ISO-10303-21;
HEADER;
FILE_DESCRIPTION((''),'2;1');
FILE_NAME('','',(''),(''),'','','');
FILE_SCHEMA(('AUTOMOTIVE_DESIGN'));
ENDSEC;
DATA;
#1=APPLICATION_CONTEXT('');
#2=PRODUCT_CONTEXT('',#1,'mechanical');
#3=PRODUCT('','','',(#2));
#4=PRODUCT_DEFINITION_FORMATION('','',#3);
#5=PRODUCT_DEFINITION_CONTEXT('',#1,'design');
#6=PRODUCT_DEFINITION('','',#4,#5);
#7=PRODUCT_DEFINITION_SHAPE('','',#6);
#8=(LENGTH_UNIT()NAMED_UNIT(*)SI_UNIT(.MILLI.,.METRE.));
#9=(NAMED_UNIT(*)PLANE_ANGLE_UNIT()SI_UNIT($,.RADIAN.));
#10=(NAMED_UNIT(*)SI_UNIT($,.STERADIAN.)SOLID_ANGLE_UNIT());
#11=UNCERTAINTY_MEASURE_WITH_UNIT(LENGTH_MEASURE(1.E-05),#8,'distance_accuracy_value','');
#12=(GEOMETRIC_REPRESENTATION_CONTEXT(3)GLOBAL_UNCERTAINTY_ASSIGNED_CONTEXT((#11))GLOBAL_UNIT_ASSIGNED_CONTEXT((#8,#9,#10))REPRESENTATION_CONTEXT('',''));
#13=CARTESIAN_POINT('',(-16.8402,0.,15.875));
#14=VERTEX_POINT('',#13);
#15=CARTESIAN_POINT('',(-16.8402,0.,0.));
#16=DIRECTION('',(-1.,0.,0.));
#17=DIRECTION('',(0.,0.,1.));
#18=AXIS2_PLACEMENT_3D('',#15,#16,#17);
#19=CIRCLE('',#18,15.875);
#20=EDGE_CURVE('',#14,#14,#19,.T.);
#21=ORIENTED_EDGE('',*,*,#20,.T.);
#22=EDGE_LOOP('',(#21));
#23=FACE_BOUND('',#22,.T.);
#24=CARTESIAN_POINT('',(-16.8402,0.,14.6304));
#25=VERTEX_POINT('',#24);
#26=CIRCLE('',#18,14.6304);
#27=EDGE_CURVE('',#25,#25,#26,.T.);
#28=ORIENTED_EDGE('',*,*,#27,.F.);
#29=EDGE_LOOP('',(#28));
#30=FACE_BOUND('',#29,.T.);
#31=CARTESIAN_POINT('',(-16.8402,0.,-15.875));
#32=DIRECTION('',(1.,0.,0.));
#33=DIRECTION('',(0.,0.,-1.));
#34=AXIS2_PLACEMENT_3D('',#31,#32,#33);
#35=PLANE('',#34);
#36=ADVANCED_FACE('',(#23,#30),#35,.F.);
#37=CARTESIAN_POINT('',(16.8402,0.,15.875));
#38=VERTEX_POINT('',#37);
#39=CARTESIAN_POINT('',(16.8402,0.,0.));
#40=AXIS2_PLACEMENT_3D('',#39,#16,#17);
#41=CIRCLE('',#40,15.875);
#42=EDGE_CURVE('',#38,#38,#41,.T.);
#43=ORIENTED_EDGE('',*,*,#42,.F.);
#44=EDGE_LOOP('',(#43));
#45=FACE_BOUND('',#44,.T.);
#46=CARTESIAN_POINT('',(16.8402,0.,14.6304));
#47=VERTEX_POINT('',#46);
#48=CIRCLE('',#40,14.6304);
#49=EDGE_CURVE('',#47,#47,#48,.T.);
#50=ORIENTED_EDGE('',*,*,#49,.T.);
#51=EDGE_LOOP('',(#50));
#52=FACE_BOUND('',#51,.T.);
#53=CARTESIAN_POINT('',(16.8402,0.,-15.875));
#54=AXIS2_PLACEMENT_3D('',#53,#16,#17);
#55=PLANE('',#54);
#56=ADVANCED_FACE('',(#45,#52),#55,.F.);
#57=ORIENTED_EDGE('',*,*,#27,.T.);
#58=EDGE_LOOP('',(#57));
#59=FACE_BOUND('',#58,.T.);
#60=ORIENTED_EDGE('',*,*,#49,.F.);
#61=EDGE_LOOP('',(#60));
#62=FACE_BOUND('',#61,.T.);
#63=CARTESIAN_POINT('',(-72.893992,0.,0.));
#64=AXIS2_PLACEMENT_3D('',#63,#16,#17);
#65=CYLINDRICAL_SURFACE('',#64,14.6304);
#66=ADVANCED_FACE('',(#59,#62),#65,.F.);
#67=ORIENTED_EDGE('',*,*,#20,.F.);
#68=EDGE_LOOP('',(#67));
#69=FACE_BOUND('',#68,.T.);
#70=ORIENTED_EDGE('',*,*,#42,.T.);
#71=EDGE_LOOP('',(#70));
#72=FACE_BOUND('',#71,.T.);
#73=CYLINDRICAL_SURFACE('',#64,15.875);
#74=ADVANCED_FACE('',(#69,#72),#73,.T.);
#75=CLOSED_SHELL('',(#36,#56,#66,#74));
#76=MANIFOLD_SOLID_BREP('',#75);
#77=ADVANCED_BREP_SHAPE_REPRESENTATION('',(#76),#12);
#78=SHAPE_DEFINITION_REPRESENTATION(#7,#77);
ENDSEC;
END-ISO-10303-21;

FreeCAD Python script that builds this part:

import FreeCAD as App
import Part
import Sketcher
from FreeCAD import Vector
Q = App.Units.Quantity

doc = App.newDocument("Part")
body = doc.addObject("PartDesign::Body", "Body")

sketch1 = body.newObject("Sketcher::SketchObject", "Sketch")
sketch1.AttachmentSupport = (doc.getObject("XZ_Plane"), [""])
sketch1.MapMode = "FlatFace"
sketch1.addGeometry(Part.LineSegment(Vector(-16.8, -15.9, 0), Vector(-16.8, -14.6, 0)), False)
sketch1.addGeometry(Part.LineSegment(Vector(-16.8, -14.6, 0), Vector(16.8, -14.6, 0)), False)
sketch1.addGeometry(Part.LineSegment(Vector(16.8, -14.6, 0), Vector(16.8, -15.9, 0)), False)
sketch1.addGeometry(Part.LineSegment(Vector(16.8, -15.9, 0), Vector(-16.8, -15.9, 0)), False)
sketch1.addConstraint(Sketcher.Constraint("Coincident", 0, 2, 1, 1))
sketch1.addConstraint(Sketcher.Constraint("Coincident", 1, 2, 2, 1))
sketch1.addConstraint(Sketcher.Constraint("Coincident", 2, 2, 3, 1))
sketch1.addConstraint(Sketcher.Constraint("Coincident", 3, 2, 0, 1))
sketch1.addConstraint(Sketcher.Constraint("Vertical", 0))
sketch1.addConstraint(Sketcher.Constraint("Horizontal", 1))
sketch1.addConstraint(Sketcher.Constraint("Vertical", 2))
sketch1.addConstraint(Sketcher.Constraint("Horizontal", 3))
sketch1.addConstraint(Sketcher.Constraint("DistanceX", 1, 1, 1, 2, Q("1.326 in")))
sketch1.addConstraint(Sketcher.Constraint("DistanceY", 0, 1, 0, 2, Q("0.049 in")))
sketch1.addConstraint(Sketcher.Constraint("DistanceX", 0, 2, -1, 1, Q("0.663 in")))
sketch1.addConstraint(Sketcher.Constraint("DistanceY", 0, 2, -1, 1, Q("0.576 in")))
revolution = body.newObject("PartDesign::Revolution", "Revolution")
revolution.Profile = sketch1
revolution.ReferenceAxis = (sketch1, ["H_Axis"])
revolution.Angle = 360

doc.recompute()
